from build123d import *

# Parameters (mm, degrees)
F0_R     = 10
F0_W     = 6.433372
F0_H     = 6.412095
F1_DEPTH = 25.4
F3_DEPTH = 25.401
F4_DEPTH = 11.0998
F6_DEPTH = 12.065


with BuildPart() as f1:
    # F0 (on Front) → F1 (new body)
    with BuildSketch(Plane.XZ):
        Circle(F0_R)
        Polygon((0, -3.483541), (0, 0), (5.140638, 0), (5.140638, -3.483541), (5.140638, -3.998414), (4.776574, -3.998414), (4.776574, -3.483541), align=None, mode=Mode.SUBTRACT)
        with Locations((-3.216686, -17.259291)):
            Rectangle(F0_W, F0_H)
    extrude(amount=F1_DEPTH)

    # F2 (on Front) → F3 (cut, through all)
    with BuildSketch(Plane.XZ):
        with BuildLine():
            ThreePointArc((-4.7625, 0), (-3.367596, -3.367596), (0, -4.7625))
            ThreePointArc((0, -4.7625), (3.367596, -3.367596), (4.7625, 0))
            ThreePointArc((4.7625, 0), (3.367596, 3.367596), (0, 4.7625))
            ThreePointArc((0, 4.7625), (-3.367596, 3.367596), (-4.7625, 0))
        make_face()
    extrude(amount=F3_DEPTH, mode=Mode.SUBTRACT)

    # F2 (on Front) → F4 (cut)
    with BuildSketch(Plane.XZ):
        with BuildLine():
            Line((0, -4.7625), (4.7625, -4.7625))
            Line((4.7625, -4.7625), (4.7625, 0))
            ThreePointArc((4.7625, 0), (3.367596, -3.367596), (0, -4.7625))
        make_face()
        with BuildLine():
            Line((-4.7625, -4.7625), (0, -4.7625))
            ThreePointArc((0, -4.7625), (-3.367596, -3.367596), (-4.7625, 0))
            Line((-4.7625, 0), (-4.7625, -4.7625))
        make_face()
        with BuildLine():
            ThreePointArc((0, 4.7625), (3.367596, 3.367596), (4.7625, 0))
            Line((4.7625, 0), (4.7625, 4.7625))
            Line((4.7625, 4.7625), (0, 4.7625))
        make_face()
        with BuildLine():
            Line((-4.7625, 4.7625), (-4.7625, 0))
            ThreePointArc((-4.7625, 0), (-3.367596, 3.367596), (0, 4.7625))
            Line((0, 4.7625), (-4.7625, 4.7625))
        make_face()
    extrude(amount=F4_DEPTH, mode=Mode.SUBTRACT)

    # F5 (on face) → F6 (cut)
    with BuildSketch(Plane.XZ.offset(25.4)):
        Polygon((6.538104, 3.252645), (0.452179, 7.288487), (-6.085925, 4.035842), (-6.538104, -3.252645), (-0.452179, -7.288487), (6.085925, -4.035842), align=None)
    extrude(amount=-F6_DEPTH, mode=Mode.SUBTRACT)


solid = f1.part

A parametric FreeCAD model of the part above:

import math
import FreeCAD as App
import Part
import Sketcher
Q = App.Units.Quantity


def add_polygon(sketch, points):
    """Adds a closed chain of lines whose ends are joined by coincident constraints."""
    first, n = sketch.GeometryCount, len(points)
    for a, b in zip(points, points[1:] + points[:1]):
        sketch.addGeometry(Part.LineSegment(App.Vector(*a, 0), App.Vector(*b, 0)), False)
    for i in range(n):
        sketch.addConstraint(Sketcher.Constraint("Coincident", first + i, 2, first + (i + 1) % n, 1))

doc = App.newDocument("Part")
body = doc.addObject("PartDesign::Body", "Body")
body.AllowCompound = True

sketch1 = body.newObject("Sketcher::SketchObject", "Sketch")
sketch1.AttachmentSupport = (doc.getObject("XZ_Plane"), [""])
sketch1.MapMode = "FlatFace"
sketch1.addGeometry(Part.Circle(App.Vector(0, 0, 0), App.Vector(0, 0, 1), 10), False)
add_polygon(sketch1, [(4.776574, -3.483541), (0, -3.483541), (0, 0), (5.140638, 0), (5.140638, -3.998414), (4.776574, -3.998414)])
add_polygon(sketch1, [(-6.433372, -14.053244), (-6.433372, -20.465339), (0, -20.465339), (0, -14.053244)])
sketch1.addConstraint(Sketcher.Constraint("Horizontal", 1))
sketch1.addConstraint(Sketcher.Constraint("Vertical", 2))
sketch1.addConstraint(Sketcher.Constraint("Horizontal", 3))
sketch1.addConstraint(Sketcher.Constraint("Vertical", 4))
sketch1.addConstraint(Sketcher.Constraint("Horizontal", 5))
sketch1.addConstraint(Sketcher.Constraint("Vertical", 6))
sketch1.addConstraint(Sketcher.Constraint("Vertical", 7))
sketch1.addConstraint(Sketcher.Constraint("Horizontal", 8))
sketch1.addConstraint(Sketcher.Constraint("Vertical", 9))
sketch1.addConstraint(Sketcher.Constraint("Horizontal", 10))
sketch1.addConstraint(Sketcher.Constraint("Coincident", 0, 3, -1, 1))
sketch1.addConstraint(Sketcher.Constraint("Coincident", 2, 2, -1, 1))
sketch1.addConstraint(Sketcher.Constraint("PointOnObject", 8, 2, -2))
sketch1.addConstraint(Sketcher.Constraint("Diameter", 0, 20.0))
sketch1.addConstraint(Sketcher.Constraint("DistanceY", 2, 1, 2, 2, 3.483541))
sketch1.addConstraint(Sketcher.Constraint("DistanceX", 1, 2, 1, 1, 4.776574))
sketch1.addConstraint(Sketcher.Constraint("DistanceX", 3, 1, 3, 2, 5.140638))
sketch1.addConstraint(Sketcher.Constraint("DistanceX", 8, 1, 8, 2, 6.433372))
sketch1.addConstraint(Sketcher.Constraint("DistanceY", 4, 2, 4, 1, 3.998414))
sketch1.addConstraint(Sketcher.Constraint("DistanceY", 7, 2, 7, 1, 6.412095))
sketch1.addConstraint(Sketcher.Constraint("DistanceY", 7, 2, -1, 1, 20.465339))
pad1 = body.newObject("PartDesign::Pad", "Pad")
pad1.Profile = sketch1
pad1.Length = Q("1 in")

sketch2 = body.newObject("Sketcher::SketchObject", "Sketch001")
sketch2.AttachmentSupport = (doc.getObject("XZ_Plane"), [""])
sketch2.MapMode = "FlatFace"
sketch2.addGeometry(Part.ArcOfCircle(Part.Circle(App.Vector(0, 0, 0), App.Vector(0, 0, 1), 4.7625), math.radians(-179.999998), math.radians(-90.000002)), False)
sketch2.addGeometry(Part.ArcOfCircle(Part.Circle(App.Vector(0, 0, 0), App.Vector(0, 0, 1), 4.7625), math.radians(-89.999998), math.radians(-0.000002)), False)
sketch2.addGeometry(Part.ArcOfCircle(Part.Circle(App.Vector(0, 0, 0), App.Vector(0, 0, 1), 4.7625), math.radians(0.000002), math.radians(89.999998)), False)
sketch2.addGeometry(Part.ArcOfCircle(Part.Circle(App.Vector(0, 0, 0), App.Vector(0, 0, 1), 4.7625), math.radians(90.000002), math.radians(179.999998)), False)
sketch2.addConstraint(Sketcher.Constraint("Tangent", 0, 2, 1, 1))
sketch2.addConstraint(Sketcher.Constraint("Tangent", 1, 2, 2, 1))
sketch2.addConstraint(Sketcher.Constraint("Tangent", 2, 2, 3, 1))
sketch2.addConstraint(Sketcher.Constraint("Tangent", 3, 2, 0, 1))
sketch2.addConstraint(Sketcher.Constraint("Coincident", 0, 3, -1, 1))
sketch2.addConstraint(Sketcher.Constraint("Equal", 0, 1))
sketch2.addConstraint(Sketcher.Constraint("PointOnObject", 0, 2, -2))
sketch2.addConstraint(Sketcher.Constraint("PointOnObject", 1, 2, -1))
sketch2.addConstraint(Sketcher.Constraint("PointOnObject", 2, 2, -2))
sketch2.addConstraint(Sketcher.Constraint("PointOnObject", 3, 2, -1))
sketch2.addConstraint(Sketcher.Constraint("Radius", 0, Q("0.1875 in")))
pocket1 = body.newObject("PartDesign::Pocket", "Pocket")
pocket1.Profile = sketch2
pocket1.Type = "ThroughAll"
pocket1.Reversed = True

sketch3 = body.newObject("Sketcher::SketchObject", "Sketch002")
sketch3.AttachmentSupport = (doc.getObject("XZ_Plane"), [""])
sketch3.MapMode = "FlatFace"
sketch3.addGeometry(Part.LineSegment(App.Vector(0, -4.7625, 0), App.Vector(4.7625, -4.7625, 0)), False)
sketch3.addGeometry(Part.LineSegment(App.Vector(4.7625, -4.7625, 0), App.Vector(4.7625, 0, 0)), False)
sketch3.addGeometry(Part.ArcOfCircle(Part.Circle(App.Vector(0, 0, 0), App.Vector(0, 0, 1), 4.7625), math.radians(-89.999998), math.radians(-0.000002)), False)
sketch3.addGeometry(Part.LineSegment(App.Vector(-4.7625, -4.7625, 0), App.Vector(0, -4.7625, 0)), False)
sketch3.addGeometry(Part.ArcOfCircle(Part.Circle(App.Vector(0, 0, 0), App.Vector(0, 0, 1), 4.7625), math.radians(-179.999998), math.radians(-90.000002)), False)
sketch3.addGeometry(Part.LineSegment(App.Vector(-4.7625, 0, 0), App.Vector(-4.7625, -4.7625, 0)), False)
sketch3.addGeometry(Part.ArcOfCircle(Part.Circle(App.Vector(0, 0, 0), App.Vector(0, 0, 1), 4.7625), math.radians(0.000002), math.radians(89.999998)), False)
sketch3.addGeometry(Part.LineSegment(App.Vector(4.7625, 0, 0), App.Vector(4.7625, 4.7625, 0)), False)
sketch3.addGeometry(Part.LineSegment(App.Vector(4.7625, 4.7625, 0), App.Vector(0, 4.7625, 0)), False)
sketch3.addGeometry(Part.LineSegment(App.Vector(-4.7625, 4.7625, 0), App.Vector(-4.7625, 0, 0)), False)
sketch3.addGeometry(Part.ArcOfCircle(Part.Circle(App.Vector(0, 0, 0), App.Vector(0, 0, 1), 4.7625), math.radians(90.000002), math.radians(179.999998)), False)
sketch3.addGeometry(Part.LineSegment(App.Vector(0, 4.7625, 0), App.Vector(-4.7625, 4.7625, 0)), False)
sketch3.addConstraint(Sketcher.Constraint("Coincident", 0, 2, 1, 1))
sketch3.addConstraint(Sketcher.Constraint("Tangent", 1, 2, 2, 2))
sketch3.addConstraint(Sketcher.Constraint("Tangent", 2, 1, 0, 1))
sketch3.addConstraint(Sketcher.Constraint("Tangent", 3, 2, 4, 2))
sketch3.addConstraint(Sketcher.Constraint("Tangent", 4, 1, 5, 1))
sketch3.addConstraint(Sketcher.Constraint("Coincident", 5, 2, 3, 1))
sketch3.addConstraint(Sketcher.Constraint("Tangent", 6, 1, 7, 1))
sketch3.addConstraint(Sketcher.Constraint("Coincident", 7, 2, 8, 1))
sketch3.addConstraint(Sketcher.Constraint("Tangent", 8, 2, 6, 2))
sketch3.addConstraint(Sketcher.Constraint("Tangent", 9, 2, 10, 2))
sketch3.addConstraint(Sketcher.Constraint("Tangent", 10, 1, 11, 1))
sketch3.addConstraint(Sketcher.Constraint("Coincident", 11, 2, 9, 1))
sketch3.addConstraint(Sketcher.Constraint("Horizontal", 0))
sketch3.addConstraint(Sketcher.Constraint("Vertical", 1))
sketch3.addConstraint(Sketcher.Constraint("Horizontal", 3))
sketch3.addConstraint(Sketcher.Constraint("Vertical", 5))
sketch3.addConstraint(Sketcher.Constraint("Vertical", 7))
sketch3.addConstraint(Sketcher.Constraint("Horizontal", 8))
sketch3.addConstraint(Sketcher.Constraint("Vertical", 9))
sketch3.addConstraint(Sketcher.Constraint("Horizontal", 11))
sketch3.addConstraint(Sketcher.Constraint("Coincident", 2, 3, -1, 1))
sketch3.addConstraint(Sketcher.Constraint("Coincident", 4, 3, -1, 1))
sketch3.addConstraint(Sketcher.Constraint("Coincident", 6, 3, -1, 1))
sketch3.addConstraint(Sketcher.Constraint("Coincident", 10, 3, -1, 1))
sketch3.addConstraint(Sketcher.Constraint("Equal", 2, 4))
sketch3.addConstraint(Sketcher.Constraint("Equal", 4, 6))
sketch3.addConstraint(Sketcher.Constraint("Equal", 6, 10))
sketch3.addConstraint(Sketcher.Constraint("Radius", 2, Q("0.1875 in")))
pocket2 = body.newObject("PartDesign::Pocket", "Pocket001")
pocket2.Profile = sketch3
pocket2.Length = Q("0.437 in")
pocket2.Reversed = True

sketch4 = body.newObject("Sketcher::SketchObject", "Sketch003")
sketch4.AttachmentSupport = (doc.getObject("XZ_Plane"), [""])
sketch4.MapMode = "FlatFace"
sketch4.AttachmentOffset = App.Placement(App.Vector(0, 0, 1 * 25.4), App.Rotation())
add_polygon(sketch4, [(6.538104, 3.252645), (0.452179, 7.288487), (-6.085925, 4.035842), (-6.538104, -3.252645), (-0.452179, -7.288487), (6.085925, -4.035842)])
sketch4.addConstraint(Sketcher.Constraint("Symmetric", 0, 2, 3, 2, -1, 1))
sketch4.addConstraint(Sketcher.Constraint("Symmetric", 1, 2, 4, 2, -1, 1))
sketch4.addConstraint(Sketcher.Constraint("Symmetric", 2, 2, 5, 2, -1, 1))
sketch4.addConstraint(Sketcher.Constraint("Equal", 0, 1))
sketch4.addConstraint(Sketcher.Constraint("Equal", 1, 2))
sketch4.addConstraint(Sketcher.Constraint("Distance", 0, Q("0.2875 in")))
sketch4.addConstraint(Sketcher.Constraint("DistanceX", -1, 1, 0, 2, 0.452179))
sketch4.addConstraint(Sketcher.Constraint("DistanceY", -1, 1, 1, 2, 4.035842))
sketch4.addConstraint(Sketcher.Constraint("DistanceX", 2, 2, 1, 2, 0.452179))
pocket3 = body.newObject("PartDesign::Pocket", "Pocket002")
pocket3.Profile = sketch4
pocket3.Length = Q("0.475 in")

doc.recompute()
